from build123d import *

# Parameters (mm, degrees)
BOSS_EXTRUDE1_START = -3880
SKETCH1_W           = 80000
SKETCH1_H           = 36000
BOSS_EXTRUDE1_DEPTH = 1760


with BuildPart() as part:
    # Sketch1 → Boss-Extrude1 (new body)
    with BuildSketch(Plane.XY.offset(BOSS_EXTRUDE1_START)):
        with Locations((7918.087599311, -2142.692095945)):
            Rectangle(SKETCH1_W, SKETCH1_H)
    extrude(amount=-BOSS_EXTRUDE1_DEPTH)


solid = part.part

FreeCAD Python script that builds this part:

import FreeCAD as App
import Part
import Sketcher

doc = App.newDocument("Part")
body = doc.addObject("PartDesign::Body", "Body")

# Sketch on XY plane
sketch1 = body.newObject("Sketcher::SketchObject", "Sketch")
sketch1.AttachmentSupport = (doc.getObject("XY_Plane"), [""])
sketch1.MapMode = "FlatFace"
sketch1.AttachmentOffset = App.Placement(App.Vector(0, 0, -3880), App.Rotation())
sketch1.addGeometry(Part.LineSegment(App.Vector(-32082, 15857, 0), App.Vector(-32082, -20143, 0)), False)
sketch1.addGeometry(Part.LineSegment(App.Vector(-32082, -20143, 0), App.Vector(47918, -20143, 0)), False)
sketch1.addGeometry(Part.LineSegment(App.Vector(47918, -20143, 0), App.Vector(47918, 15857, 0)), False)
sketch1.addGeometry(Part.LineSegment(App.Vector(47918, 15857, 0), App.Vector(-32082, 15857, 0)), False)
sketch1.addConstraint(Sketcher.Constraint("Coincident", 0, 2, 1, 1))
sketch1.addConstraint(Sketcher.Constraint("Coincident", 1, 2, 2, 1))
sketch1.addConstraint(Sketcher.Constraint("Coincident", 2, 2, 3, 1))
sketch1.addConstraint(Sketcher.Constraint("Coincident", 3, 2, 0, 1))
sketch1.addConstraint(Sketcher.Constraint("Vertical", 0))
sketch1.addConstraint(Sketcher.Constraint("Horizontal", 1))
sketch1.addConstraint(Sketcher.Constraint("Vertical", 2))
sketch1.addConstraint(Sketcher.Constraint("Horizontal", 3))
sketch1.addConstraint(Sketcher.Constraint("DistanceX", 1, 1, 1, 2, 80000.0))
sketch1.addConstraint(Sketcher.Constraint("DistanceY", 0, 2, 0, 1, 36000.0))
sketch1.addConstraint(Sketcher.Constraint("DistanceX", 0, 2, -1, 1, 32081.912401))
sketch1.addConstraint(Sketcher.Constraint("DistanceY", 0, 2, -1, 1, 20142.692096))
pad1 = body.newObject("PartDesign::Pad", "Pad")
pad1.Profile = sketch1
pad1.Length = 1760
pad1.Reversed = True

doc.recompute()
